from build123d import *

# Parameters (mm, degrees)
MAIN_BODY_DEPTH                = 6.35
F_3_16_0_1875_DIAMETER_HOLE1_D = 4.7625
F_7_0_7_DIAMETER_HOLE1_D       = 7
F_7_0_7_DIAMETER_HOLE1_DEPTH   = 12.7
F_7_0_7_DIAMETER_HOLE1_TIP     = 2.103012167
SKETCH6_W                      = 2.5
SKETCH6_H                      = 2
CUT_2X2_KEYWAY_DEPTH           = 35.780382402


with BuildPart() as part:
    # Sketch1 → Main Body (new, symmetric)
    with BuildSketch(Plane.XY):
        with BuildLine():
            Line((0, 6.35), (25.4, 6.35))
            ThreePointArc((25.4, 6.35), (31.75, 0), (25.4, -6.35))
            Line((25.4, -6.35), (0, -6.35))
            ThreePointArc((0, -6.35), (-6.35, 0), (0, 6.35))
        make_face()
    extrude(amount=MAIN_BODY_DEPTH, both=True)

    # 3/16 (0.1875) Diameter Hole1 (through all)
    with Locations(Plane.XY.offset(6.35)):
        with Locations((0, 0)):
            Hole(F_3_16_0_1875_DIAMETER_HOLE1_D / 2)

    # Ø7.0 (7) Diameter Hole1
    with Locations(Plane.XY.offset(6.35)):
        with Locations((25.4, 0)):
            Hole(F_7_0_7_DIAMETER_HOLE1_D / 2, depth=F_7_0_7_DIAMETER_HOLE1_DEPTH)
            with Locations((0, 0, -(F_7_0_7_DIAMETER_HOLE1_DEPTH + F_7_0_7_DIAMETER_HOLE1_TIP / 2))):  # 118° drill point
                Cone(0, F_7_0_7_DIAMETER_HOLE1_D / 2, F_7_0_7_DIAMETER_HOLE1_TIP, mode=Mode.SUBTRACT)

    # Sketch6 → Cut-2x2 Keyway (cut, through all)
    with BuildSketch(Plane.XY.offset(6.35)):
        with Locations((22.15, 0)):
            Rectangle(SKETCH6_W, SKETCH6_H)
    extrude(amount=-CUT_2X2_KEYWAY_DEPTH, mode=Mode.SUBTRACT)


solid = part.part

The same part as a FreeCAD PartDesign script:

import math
import FreeCAD as App
import Part
import Sketcher

V = App.Vector
Q = App.Units.Quantity


def add_polygon(sketch, points):
    """Adds a closed chain of lines whose ends are joined by coincident constraints."""
    first, n = sketch.GeometryCount, len(points)
    for a, b in zip(points, points[1:] + points[:1]):
        sketch.addGeometry(Part.LineSegment(App.Vector(*a, 0), App.Vector(*b, 0)), False)
    for i in range(n):
        sketch.addConstraint(Sketcher.Constraint("Coincident", first + i, 2, first + (i + 1) % n, 1))

doc = App.newDocument("Part")
body = doc.addObject("PartDesign::Body", "Body")

# Sketch on XY plane
sketch1 = body.newObject("Sketcher::SketchObject", "Sketch")
sketch1.AttachmentSupport = (doc.getObject("XY_Plane"), [""])
sketch1.MapMode = "FlatFace"
sketch1.addGeometry(Part.LineSegment(V(25, 6, 0), V(0, 6, 0)), False)
sketch1.addGeometry(Part.ArcOfCircle(Part.Circle(V(0, 0, 0), V(0, 0, 1), 6), math.radians(90), math.radians(270)), False)
sketch1.addGeometry(Part.LineSegment(V(0, -6, 0), V(25, -6, 0)), False)
sketch1.addGeometry(Part.ArcOfCircle(Part.Circle(V(25, 0, 0), V(0, 0, 1), 6), math.radians(-90), math.radians(90)), False)
sketch1.addConstraint(Sketcher.Constraint("Tangent", 0, 2, 1, 1))
sketch1.addConstraint(Sketcher.Constraint("Tangent", 1, 2, 2, 1))
sketch1.addConstraint(Sketcher.Constraint("Tangent", 2, 2, 3, 1))
sketch1.addConstraint(Sketcher.Constraint("Tangent", 3, 2, 0, 1))
sketch1.addConstraint(Sketcher.Constraint("Horizontal", 0))
sketch1.addConstraint(Sketcher.Constraint("Horizontal", 2))
sketch1.addConstraint(Sketcher.Constraint("Coincident", 1, 3, -1, 1))
sketch1.addConstraint(Sketcher.Constraint("DistanceX", 0, 2, 0, 1, Q("1 in")))
sketch1.addConstraint(Sketcher.Constraint("Radius", 1, Q("0.25 in")))
pad1 = body.newObject("PartDesign::Pad", "Pad")
pad1.Profile = sketch1
pad1.Length = Q("0.5 in")
pad1.Midplane = True

# Sketch on XY plane
sketch2 = body.newObject("Sketcher::SketchObject", "Sketch001")
sketch2.AttachmentSupport = (doc.getObject("XY_Plane"), [""])
sketch2.MapMode = "FlatFace"
sketch2.AttachmentOffset = App.Placement(V(0, 0, 0.25 * 25.4), App.Rotation())
sketch2.addGeometry(Part.Circle(V(0, 0, 0), V(0, 0, 1), 2.4), False)
sketch2.addConstraint(Sketcher.Constraint("Coincident", 0, 3, -1, 1))
sketch2.addConstraint(Sketcher.Constraint("Diameter", 0, Q("0.1875 in")))
doc.recompute()
hole = body.newObject("PartDesign::Hole", "Hole")
hole.Profile = sketch2
hole.ThreadType = "None"
hole.Diameter = Q("0.1875 in")
hole.DepthType = "ThroughAll"

# Sketch on XY plane
sketch3 = body.newObject("Sketcher::SketchObject", "Sketch002")
sketch3.AttachmentSupport = (doc.getObject("XY_Plane"), [""])
sketch3.MapMode = "FlatFace"
sketch3.AttachmentOffset = App.Placement(V(0, 0, 0.25 * 25.4), App.Rotation())
sketch3.addGeometry(Part.Circle(V(25.4, 0, 0), V(0, 0, 1), 3.5), False)
sketch3.addConstraint(Sketcher.Constraint("PointOnObject", 0, 3, -1))
sketch3.addConstraint(Sketcher.Constraint("DistanceX", -1, 1, 0, 3, Q("1 in")))
sketch3.addConstraint(Sketcher.Constraint("Diameter", 0, 7.0))
doc.recompute()
hole2 = body.newObject("PartDesign::Hole", "Hole001")
hole2.Profile = sketch3
hole2.ThreadType = "None"
hole2.Diameter = 7
hole2.DepthType = "Dimension"
hole2.Depth = Q("0.5 in")
hole2.DrillPoint = "Angled"
hole2.DrillPointAngle = 118

# Sketch on XY plane
sketch4 = body.newObject("Sketcher::SketchObject", "Sketch003")
sketch4.AttachmentSupport = (doc.getObject("XY_Plane"), [""])
sketch4.MapMode = "FlatFace"
sketch4.AttachmentOffset = App.Placement(V(0, 0, 0.25 * 25.4), App.Rotation())
add_polygon(sketch4, [(20.9, 1), (20.9, -1), (23.4, -1), (23.4, 1)])  # lines 0-3
sketch4.addConstraint(Sketcher.Constraint("Vertical", 0))
sketch4.addConstraint(Sketcher.Constraint("Horizontal", 1))
sketch4.addConstraint(Sketcher.Constraint("Vertical", 2))
sketch4.addConstraint(Sketcher.Constraint("Horizontal", 3))
sketch4.addConstraint(Sketcher.Constraint("DistanceX", 1, 1, 1, 2, 2.5))
sketch4.addConstraint(Sketcher.Constraint("DistanceY", 0, 2, 0, 1, 2.0))
sketch4.addConstraint(Sketcher.Constraint("DistanceX", -1, 1, 0, 2, 20.9))
sketch4.addConstraint(Sketcher.Constraint("DistanceY", 0, 2, -1, 1, 1.0))
pocket1 = body.newObject("PartDesign::Pocket", "Pocket")
pocket1.Profile = sketch4
pocket1.Type = "ThroughAll"

doc.recompute()
